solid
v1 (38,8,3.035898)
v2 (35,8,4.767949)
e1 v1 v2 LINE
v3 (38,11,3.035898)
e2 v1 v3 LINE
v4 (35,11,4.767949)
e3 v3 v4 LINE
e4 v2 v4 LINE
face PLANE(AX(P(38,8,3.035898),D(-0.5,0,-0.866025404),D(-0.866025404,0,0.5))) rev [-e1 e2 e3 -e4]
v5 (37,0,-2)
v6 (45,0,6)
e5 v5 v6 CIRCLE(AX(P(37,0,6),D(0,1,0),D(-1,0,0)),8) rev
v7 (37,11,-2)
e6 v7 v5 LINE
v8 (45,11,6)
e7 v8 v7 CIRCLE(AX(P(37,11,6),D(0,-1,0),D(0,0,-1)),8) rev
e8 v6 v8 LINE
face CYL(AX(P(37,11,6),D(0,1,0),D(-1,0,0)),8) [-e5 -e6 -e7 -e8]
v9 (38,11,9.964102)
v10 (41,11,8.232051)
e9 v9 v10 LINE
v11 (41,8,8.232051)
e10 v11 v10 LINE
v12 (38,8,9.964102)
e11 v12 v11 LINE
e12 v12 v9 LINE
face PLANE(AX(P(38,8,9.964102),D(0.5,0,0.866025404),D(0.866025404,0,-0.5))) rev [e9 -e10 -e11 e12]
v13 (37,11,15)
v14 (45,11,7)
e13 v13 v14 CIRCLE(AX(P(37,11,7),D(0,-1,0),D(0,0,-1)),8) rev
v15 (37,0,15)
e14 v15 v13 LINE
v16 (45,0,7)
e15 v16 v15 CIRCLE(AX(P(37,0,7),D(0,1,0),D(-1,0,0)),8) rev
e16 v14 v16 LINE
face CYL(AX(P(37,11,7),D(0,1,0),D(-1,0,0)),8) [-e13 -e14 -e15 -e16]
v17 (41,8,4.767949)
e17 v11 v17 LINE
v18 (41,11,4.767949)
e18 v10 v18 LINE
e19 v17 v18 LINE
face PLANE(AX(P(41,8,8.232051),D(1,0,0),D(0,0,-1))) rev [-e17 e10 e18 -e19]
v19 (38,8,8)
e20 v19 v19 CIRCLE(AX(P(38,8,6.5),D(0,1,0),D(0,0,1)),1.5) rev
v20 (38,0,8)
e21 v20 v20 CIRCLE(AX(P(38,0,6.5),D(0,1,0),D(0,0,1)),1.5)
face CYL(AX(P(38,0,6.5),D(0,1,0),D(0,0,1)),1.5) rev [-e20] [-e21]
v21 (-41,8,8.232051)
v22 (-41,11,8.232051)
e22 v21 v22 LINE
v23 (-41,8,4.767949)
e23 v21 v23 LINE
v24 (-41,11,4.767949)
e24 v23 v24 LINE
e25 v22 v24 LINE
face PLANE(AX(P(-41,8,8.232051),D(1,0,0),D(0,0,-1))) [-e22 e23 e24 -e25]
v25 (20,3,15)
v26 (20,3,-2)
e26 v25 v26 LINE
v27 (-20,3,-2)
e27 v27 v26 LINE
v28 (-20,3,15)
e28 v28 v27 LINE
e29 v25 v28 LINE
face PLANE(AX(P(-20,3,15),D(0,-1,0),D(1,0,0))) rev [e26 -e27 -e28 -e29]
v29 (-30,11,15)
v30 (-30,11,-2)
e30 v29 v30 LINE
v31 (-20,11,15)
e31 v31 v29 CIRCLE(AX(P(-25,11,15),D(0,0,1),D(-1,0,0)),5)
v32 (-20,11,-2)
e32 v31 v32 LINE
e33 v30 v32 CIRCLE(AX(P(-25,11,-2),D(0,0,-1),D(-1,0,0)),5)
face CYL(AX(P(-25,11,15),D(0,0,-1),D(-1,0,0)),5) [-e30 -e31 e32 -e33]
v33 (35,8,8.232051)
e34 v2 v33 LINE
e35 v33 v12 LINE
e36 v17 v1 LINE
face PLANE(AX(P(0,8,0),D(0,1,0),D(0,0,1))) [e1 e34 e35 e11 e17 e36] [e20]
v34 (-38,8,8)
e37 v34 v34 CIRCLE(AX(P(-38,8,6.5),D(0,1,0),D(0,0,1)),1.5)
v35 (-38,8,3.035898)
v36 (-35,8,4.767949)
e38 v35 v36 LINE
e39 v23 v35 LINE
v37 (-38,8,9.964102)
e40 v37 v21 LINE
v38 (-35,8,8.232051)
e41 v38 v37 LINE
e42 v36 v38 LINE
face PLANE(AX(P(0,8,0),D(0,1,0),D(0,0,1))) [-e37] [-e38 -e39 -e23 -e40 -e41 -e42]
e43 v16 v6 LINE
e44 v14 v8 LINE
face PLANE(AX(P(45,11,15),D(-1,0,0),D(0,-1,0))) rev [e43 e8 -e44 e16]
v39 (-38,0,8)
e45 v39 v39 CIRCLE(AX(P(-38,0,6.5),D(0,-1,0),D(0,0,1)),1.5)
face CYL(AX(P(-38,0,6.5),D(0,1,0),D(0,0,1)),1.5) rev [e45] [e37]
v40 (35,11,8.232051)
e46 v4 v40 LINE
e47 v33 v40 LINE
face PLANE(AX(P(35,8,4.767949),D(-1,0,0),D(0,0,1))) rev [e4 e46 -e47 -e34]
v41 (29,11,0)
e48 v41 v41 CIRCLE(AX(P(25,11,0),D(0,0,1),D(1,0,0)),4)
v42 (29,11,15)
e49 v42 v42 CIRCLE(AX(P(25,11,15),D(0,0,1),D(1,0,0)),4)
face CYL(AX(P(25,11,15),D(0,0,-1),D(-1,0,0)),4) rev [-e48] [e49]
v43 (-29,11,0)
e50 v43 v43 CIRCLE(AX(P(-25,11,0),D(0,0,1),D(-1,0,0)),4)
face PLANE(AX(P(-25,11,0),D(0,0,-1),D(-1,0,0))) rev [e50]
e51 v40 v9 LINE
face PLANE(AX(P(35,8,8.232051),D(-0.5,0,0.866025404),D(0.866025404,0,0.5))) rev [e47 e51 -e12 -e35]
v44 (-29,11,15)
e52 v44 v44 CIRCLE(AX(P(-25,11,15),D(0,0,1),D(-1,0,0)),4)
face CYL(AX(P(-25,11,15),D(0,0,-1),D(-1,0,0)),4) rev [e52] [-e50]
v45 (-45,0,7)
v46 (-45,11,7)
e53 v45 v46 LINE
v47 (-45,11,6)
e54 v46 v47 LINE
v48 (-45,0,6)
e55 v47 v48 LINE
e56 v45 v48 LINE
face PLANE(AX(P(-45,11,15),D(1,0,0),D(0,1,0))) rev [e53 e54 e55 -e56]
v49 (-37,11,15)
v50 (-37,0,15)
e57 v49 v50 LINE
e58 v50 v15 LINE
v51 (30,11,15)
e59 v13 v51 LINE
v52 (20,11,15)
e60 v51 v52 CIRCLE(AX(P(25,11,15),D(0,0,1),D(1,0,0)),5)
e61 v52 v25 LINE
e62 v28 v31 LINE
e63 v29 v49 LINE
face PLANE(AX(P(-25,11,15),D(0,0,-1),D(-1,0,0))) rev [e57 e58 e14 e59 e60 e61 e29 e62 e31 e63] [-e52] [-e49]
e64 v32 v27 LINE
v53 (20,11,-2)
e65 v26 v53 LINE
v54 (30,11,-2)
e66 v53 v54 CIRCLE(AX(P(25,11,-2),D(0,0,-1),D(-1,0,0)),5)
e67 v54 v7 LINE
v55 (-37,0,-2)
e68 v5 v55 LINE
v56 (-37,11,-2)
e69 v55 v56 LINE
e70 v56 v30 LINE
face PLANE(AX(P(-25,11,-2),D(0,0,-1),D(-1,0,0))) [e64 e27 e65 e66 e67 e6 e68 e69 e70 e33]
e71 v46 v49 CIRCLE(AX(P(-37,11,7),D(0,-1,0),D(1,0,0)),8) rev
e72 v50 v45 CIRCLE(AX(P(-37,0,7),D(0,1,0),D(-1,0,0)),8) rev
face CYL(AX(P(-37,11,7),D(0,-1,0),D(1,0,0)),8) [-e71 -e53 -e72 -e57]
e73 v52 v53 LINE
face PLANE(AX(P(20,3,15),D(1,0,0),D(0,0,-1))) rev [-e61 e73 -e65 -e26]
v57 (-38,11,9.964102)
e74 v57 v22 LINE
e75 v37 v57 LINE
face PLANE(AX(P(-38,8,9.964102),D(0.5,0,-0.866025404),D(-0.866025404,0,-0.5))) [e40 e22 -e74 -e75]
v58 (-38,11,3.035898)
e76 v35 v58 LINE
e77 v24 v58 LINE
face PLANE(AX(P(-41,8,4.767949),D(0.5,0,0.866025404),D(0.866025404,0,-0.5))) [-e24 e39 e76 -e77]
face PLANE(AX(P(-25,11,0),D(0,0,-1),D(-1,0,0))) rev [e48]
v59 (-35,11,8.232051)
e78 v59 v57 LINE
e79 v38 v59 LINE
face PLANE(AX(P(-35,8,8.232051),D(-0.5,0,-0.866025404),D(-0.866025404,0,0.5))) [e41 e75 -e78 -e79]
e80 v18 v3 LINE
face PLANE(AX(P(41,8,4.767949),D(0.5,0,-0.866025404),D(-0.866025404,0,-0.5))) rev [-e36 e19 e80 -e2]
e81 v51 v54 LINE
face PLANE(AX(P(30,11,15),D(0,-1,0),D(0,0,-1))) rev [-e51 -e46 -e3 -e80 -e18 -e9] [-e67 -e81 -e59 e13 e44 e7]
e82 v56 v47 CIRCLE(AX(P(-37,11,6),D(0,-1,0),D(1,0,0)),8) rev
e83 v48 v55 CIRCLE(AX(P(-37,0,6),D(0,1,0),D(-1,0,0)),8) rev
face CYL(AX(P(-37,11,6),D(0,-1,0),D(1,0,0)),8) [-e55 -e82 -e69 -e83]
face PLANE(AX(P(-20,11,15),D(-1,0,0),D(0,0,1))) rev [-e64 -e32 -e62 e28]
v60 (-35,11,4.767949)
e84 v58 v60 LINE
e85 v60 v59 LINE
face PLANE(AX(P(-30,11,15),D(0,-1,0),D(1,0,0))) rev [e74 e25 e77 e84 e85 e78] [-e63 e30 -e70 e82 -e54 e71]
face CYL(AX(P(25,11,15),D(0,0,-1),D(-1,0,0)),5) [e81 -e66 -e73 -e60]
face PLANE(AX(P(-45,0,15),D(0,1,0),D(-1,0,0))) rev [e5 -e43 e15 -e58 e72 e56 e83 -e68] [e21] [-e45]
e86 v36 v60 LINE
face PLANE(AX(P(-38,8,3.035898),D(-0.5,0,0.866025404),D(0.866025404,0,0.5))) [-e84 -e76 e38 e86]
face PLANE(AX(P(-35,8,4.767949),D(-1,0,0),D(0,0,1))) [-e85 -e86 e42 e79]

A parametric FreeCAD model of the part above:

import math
import FreeCAD as App
import Part
import Sketcher

V = App.Vector
Q = App.Units.Quantity


def edges_at(feature, points):
    """Names of the edges that pass closest to the given points."""
    edges = feature.Shape.Edges
    near = lambda p: min(range(len(edges)), key=lambda i: edges[i].distToShape(Part.Vertex(*p))[0])
    return sorted({f"Edge{near(p) + 1}" for p in points})

doc = App.newDocument("Part")
body = doc.addObject("PartDesign::Body", "Body")

# Sketch on XY plane
sketch1 = doc.addObject("Sketcher::SketchObject", "Sketch")
body.addObject(sketch1)
sketch1.AttachmentSupport = (doc.XY_Plane, [""])
sketch1.MapMode = "FlatFace"
sketch1.addGeometry([
    Part.LineSegment(V(-45, 0, 0), V(45, 0, 0)),  # 0
    Part.LineSegment(V(45, 0, 0), V(45, 11, 0)),  # 1
    Part.LineSegment(V(45, 11, 0), V(30, 11, 0)),  # 2
    Part.ArcOfCircle(Part.Circle(V(25, 11, 0), V(0, 0, 1), 5), math.radians(0), math.radians(180)),  # 3
    Part.LineSegment(V(20, 11, 0), V(20, 3, 0)),  # 4
    Part.LineSegment(V(20, 3, 0), V(-20, 3, 0)),  # 5
    Part.LineSegment(V(-20, 3, 0), V(-20, 11, 0)),  # 6
    Part.ArcOfCircle(Part.Circle(V(-25, 11, 0), V(0, 0, 1), 5), math.radians(0), math.radians(180)),  # 7
    Part.LineSegment(V(-30, 11, 0), V(-45, 11, 0)),  # 8
    Part.LineSegment(V(-45, 11, 0), V(-45, 0, 0)),  # 9
    Part.Circle(V(-25, 11, 0), V(0, 0, 1), 4),  # 10
    Part.Circle(V(25, 11, 0), V(0, 0, 1), 4),  # 11
], False)
sketch1.addConstraint([
    Sketcher.Constraint("Coincident", 0, 2, 1, 1),
    Sketcher.Constraint("Coincident", 1, 2, 2, 1),
    Sketcher.Constraint("Coincident", 2, 2, 3, 1),
    Sketcher.Constraint("Tangent", 3, 2, 4, 1),
    Sketcher.Constraint("Coincident", 4, 2, 5, 1),
    Sketcher.Constraint("Coincident", 5, 2, 6, 1),
    Sketcher.Constraint("Tangent", 6, 2, 7, 1),
    Sketcher.Constraint("Coincident", 7, 2, 8, 1),
    Sketcher.Constraint("Coincident", 8, 2, 9, 1),
    Sketcher.Constraint("Coincident", 9, 2, 0, 1),
    Sketcher.Constraint("Horizontal", 0),
    Sketcher.Constraint("Vertical", 1),
    Sketcher.Constraint("Horizontal", 2),
    Sketcher.Constraint("Vertical", 4),
    Sketcher.Constraint("Horizontal", 5),
    Sketcher.Constraint("Vertical", 6),
    Sketcher.Constraint("Horizontal", 8),
    Sketcher.Constraint("Vertical", 9),
    Sketcher.Constraint("Coincident", 10, 3, 7, 3),
    Sketcher.Constraint("Coincident", 11, 3, 3, 3),
    Sketcher.Constraint("Equal", 3, 7),
    Sketcher.Constraint("Equal", 10, 11),
    Sketcher.Constraint("Symmetric", 0, 2, 9, 2, -1, 1),
    Sketcher.Constraint("Symmetric", 3, 3, 7, 3, -2),
    Sketcher.Constraint("Horizontal", 11, 3, 1, 2),
    Sketcher.Constraint("Horizontal", 6, 2, 7, 2),
    Sketcher.Constraint("Diameter", 10, 8.0),
    Sketcher.Constraint("Radius", 3, 5.0),
    Sketcher.Constraint("DistanceX", 0, 1, 0, 2, 90.0),
    Sketcher.Constraint("DistanceX", 2, 2, 2, 1, 15.0),
    Sketcher.Constraint("DistanceY", 1, 1, 1, 2, 11.0),
    Sketcher.Constraint("DistanceY", 4, 2, 4, 1, 8.0),
])
pad1 = doc.addObject("PartDesign::Pad", "Pad")
body.addObject(pad1)
pad1.Profile = sketch1
pad1.Length = 15

# Sketch on XY plane
sketch2 = doc.addObject("Sketcher::SketchObject", "Sketch001")
body.addObject(sketch2)
sketch2.AttachmentSupport = (doc.XY_Plane, [""])
sketch2.MapMode = "FlatFace"
sketch2.AttachmentOffset = App.Placement(V(0, 0, -2), App.Rotation())
sketch2.addGeometry([
    Part.LineSegment(V(45, 11, 0), V(45, 0, 0)),  # 0
    Part.LineSegment(V(45, 0, 0), V(-45, 0, 0)),  # 1
    Part.LineSegment(V(-45, 0, 0), V(-45, 11, 0)),  # 2
    Part.LineSegment(V(-45, 11, 0), V(-30, 11, 0)),  # 3
    Part.ArcOfCircle(Part.Circle(V(-25, 11, 0), V(0, 0, 1), 5), math.radians(0), math.radians(180)),  # 4
    Part.LineSegment(V(-20, 11, 0), V(-20, 3, 0)),  # 5
    Part.LineSegment(V(-20, 3, 0), V(20, 3, 0)),  # 6
    Part.LineSegment(V(20, 3, 0), V(20, 11, 0)),  # 7
    Part.ArcOfCircle(Part.Circle(V(25, 11, 0), V(0, 0, 1), 5), math.radians(0), math.radians(180)),  # 8
    Part.LineSegment(V(30, 11, 0), V(45, 11, 0)),  # 9
], False)
sketch2.addConstraint([
    Sketcher.Constraint("Coincident", 0, 2, 1, 1),
    Sketcher.Constraint("Coincident", 1, 2, 2, 1),
    Sketcher.Constraint("Coincident", 2, 2, 3, 1),
    Sketcher.Constraint("Coincident", 3, 2, 4, 2),
    Sketcher.Constraint("Tangent", 4, 1, 5, 1),
    Sketcher.Constraint("Coincident", 5, 2, 6, 1),
    Sketcher.Constraint("Coincident", 6, 2, 7, 1),
    Sketcher.Constraint("Tangent", 7, 2, 8, 2),
    Sketcher.Constraint("Coincident", 8, 1, 9, 1),
    Sketcher.Constraint("Coincident", 9, 2, 0, 1),
    Sketcher.Constraint("Vertical", 0),
    Sketcher.Constraint("Horizontal", 1),
    Sketcher.Constraint("Vertical", 2),
    Sketcher.Constraint("Horizontal", 3),
    Sketcher.Constraint("Vertical", 5),
    Sketcher.Constraint("Horizontal", 6),
    Sketcher.Constraint("Vertical", 7),
    Sketcher.Constraint("Horizontal", 9),
    Sketcher.Constraint("Equal", 4, 8),
    Sketcher.Constraint("Symmetric", 0, 2, 1, 2, -1, 1),
    Sketcher.Constraint("Symmetric", 4, 3, 8, 3, -2),
    Sketcher.Constraint("Horizontal", 8, 3, 2, 2),
    Sketcher.Constraint("Horizontal", 7, 2, 8, 1),
    Sketcher.Constraint("Radius", 4, 5.0),
    Sketcher.Constraint("DistanceX", 1, 2, 1, 1, 90.0),
    Sketcher.Constraint("DistanceX", 3, 1, 3, 2, 15.0),
    Sketcher.Constraint("DistanceY", 0, 2, 0, 1, 11.0),
    Sketcher.Constraint("DistanceY", 5, 2, 5, 1, 8.0),
])
pad2 = doc.addObject("PartDesign::Pad", "Pad001")
body.addObject(pad2)
pad2.Profile = sketch2
pad2.Length = 2

# Sketch on XZ plane
sketch3 = doc.addObject("Sketcher::SketchObject", "Sketch002")
body.addObject(sketch3)
sketch3.AttachmentSupport = (doc.XZ_Plane, [""])
sketch3.MapMode = "FlatFace"
sketch3.AttachmentOffset = App.Placement(V(0, 0, -11), App.Rotation())
sketch3.addGeometry(Part.Circle(V(38, 6.5, 0), V(0, 0, 1), 1.5), False)
sketch3.addConstraint([
    Sketcher.Constraint("Diameter", 0, 3.0),
    Sketcher.Constraint("DistanceX", -1, 1, 0, 3, 38.0),
    Sketcher.Constraint("DistanceY", -1, 1, 0, 3, 6.5),
])
pocket1 = doc.addObject("PartDesign::Pocket", "Pocket")
body.addObject(pocket1)
pocket1.Profile = sketch3
pocket1.Type = "ThroughAll"
pocket1.Reversed = True
doc.recompute()

mirrored = doc.addObject("PartDesign::Mirrored", "Mirrored")
body.addObject(mirrored)
mirrored.Originals = [pocket1]
mirrored.MirrorPlane = (doc.YZ_Plane, [""])
body.Tip = mirrored
doc.recompute()

fillet = doc.addObject("PartDesign::Fillet", "Fillet")
body.addObject(fillet)
fillet.Base = (mirrored, edges_at(mirrored, [
    (-45, 5.5, 15),
    (45, 5.5, 15),
    (45, 5.5, -2),
    (-45, 5.5, -2),
]))
fillet.Radius = 8

# Sketch on XZ plane
sketch4 = doc.addObject("Sketcher::SketchObject", "Sketch003")
body.addObject(sketch4)
sketch4.AttachmentSupport = (doc.XZ_Plane, [""])
sketch4.MapMode = "FlatFace"
sketch4.AttachmentOffset = App.Placement(V(0, 0, -11), App.Rotation())
sketch4.addGeometry([
    Part.LineSegment(V(38, 3, 0), V(35, 4.8, 0)),  # 0
    Part.LineSegment(V(35, 4.8, 0), V(35, 8.2, 0)),  # 1
    Part.LineSegment(V(35, 8.2, 0), V(38, 10, 0)),  # 2
    Part.LineSegment(V(38, 10, 0), V(41, 8.2, 0)),  # 3
    Part.LineSegment(V(41, 8.2, 0), V(41, 4.8, 0)),  # 4
    Part.LineSegment(V(41, 4.8, 0), V(38, 3, 0)),  # 5
], False)
sketch4.addConstraint([
    Sketcher.Constraint("Coincident", 0, 2, 1, 1),
    Sketcher.Constraint("Coincident", 1, 2, 2, 1),
    Sketcher.Constraint("Coincident", 2, 2, 3, 1),
    Sketcher.Constraint("Coincident", 3, 2, 4, 1),
    Sketcher.Constraint("Coincident", 4, 2, 5, 1),
    Sketcher.Constraint("Coincident", 5, 2, 0, 1),
    Sketcher.Constraint("Vertical", 1),
    Sketcher.Constraint("Vertical", 4),
    Sketcher.Constraint("Parallel", 0, 3),
    Sketcher.Constraint("Parallel", 2, 5),
    Sketcher.Constraint("Horizontal", 1, 2, 3, 2),
    Sketcher.Constraint("Horizontal", 0, 2, 4, 2),
    Sketcher.Constraint("Vertical", 2, 2, 5, 2),
    Sketcher.Constraint("Angle", 0, Q("150 deg")),
    Sketcher.Constraint("DistanceX", -1, 1, 0, 2, 35.0),
    Sketcher.Constraint("DistanceX", -1, 1, 2, 2, 38.0),
    Sketcher.Constraint("DistanceY", 1, 1, 1, 2, 3.464102),
    Sketcher.Constraint("DistanceY", -1, 1, 2, 2, 9.964102),
])
pocket2 = doc.addObject("PartDesign::Pocket", "Pocket001")
body.addObject(pocket2)
pocket2.Profile = sketch4
pocket2.Length = 3
pocket2.Reversed = True
doc.recompute()

mirrored2 = doc.addObject("PartDesign::Mirrored", "Mirrored001")
body.addObject(mirrored2)
mirrored2.Originals = [pocket2]
mirrored2.MirrorPlane = (doc.YZ_Plane, [""])
body.Tip = mirrored2

doc.recompute()
